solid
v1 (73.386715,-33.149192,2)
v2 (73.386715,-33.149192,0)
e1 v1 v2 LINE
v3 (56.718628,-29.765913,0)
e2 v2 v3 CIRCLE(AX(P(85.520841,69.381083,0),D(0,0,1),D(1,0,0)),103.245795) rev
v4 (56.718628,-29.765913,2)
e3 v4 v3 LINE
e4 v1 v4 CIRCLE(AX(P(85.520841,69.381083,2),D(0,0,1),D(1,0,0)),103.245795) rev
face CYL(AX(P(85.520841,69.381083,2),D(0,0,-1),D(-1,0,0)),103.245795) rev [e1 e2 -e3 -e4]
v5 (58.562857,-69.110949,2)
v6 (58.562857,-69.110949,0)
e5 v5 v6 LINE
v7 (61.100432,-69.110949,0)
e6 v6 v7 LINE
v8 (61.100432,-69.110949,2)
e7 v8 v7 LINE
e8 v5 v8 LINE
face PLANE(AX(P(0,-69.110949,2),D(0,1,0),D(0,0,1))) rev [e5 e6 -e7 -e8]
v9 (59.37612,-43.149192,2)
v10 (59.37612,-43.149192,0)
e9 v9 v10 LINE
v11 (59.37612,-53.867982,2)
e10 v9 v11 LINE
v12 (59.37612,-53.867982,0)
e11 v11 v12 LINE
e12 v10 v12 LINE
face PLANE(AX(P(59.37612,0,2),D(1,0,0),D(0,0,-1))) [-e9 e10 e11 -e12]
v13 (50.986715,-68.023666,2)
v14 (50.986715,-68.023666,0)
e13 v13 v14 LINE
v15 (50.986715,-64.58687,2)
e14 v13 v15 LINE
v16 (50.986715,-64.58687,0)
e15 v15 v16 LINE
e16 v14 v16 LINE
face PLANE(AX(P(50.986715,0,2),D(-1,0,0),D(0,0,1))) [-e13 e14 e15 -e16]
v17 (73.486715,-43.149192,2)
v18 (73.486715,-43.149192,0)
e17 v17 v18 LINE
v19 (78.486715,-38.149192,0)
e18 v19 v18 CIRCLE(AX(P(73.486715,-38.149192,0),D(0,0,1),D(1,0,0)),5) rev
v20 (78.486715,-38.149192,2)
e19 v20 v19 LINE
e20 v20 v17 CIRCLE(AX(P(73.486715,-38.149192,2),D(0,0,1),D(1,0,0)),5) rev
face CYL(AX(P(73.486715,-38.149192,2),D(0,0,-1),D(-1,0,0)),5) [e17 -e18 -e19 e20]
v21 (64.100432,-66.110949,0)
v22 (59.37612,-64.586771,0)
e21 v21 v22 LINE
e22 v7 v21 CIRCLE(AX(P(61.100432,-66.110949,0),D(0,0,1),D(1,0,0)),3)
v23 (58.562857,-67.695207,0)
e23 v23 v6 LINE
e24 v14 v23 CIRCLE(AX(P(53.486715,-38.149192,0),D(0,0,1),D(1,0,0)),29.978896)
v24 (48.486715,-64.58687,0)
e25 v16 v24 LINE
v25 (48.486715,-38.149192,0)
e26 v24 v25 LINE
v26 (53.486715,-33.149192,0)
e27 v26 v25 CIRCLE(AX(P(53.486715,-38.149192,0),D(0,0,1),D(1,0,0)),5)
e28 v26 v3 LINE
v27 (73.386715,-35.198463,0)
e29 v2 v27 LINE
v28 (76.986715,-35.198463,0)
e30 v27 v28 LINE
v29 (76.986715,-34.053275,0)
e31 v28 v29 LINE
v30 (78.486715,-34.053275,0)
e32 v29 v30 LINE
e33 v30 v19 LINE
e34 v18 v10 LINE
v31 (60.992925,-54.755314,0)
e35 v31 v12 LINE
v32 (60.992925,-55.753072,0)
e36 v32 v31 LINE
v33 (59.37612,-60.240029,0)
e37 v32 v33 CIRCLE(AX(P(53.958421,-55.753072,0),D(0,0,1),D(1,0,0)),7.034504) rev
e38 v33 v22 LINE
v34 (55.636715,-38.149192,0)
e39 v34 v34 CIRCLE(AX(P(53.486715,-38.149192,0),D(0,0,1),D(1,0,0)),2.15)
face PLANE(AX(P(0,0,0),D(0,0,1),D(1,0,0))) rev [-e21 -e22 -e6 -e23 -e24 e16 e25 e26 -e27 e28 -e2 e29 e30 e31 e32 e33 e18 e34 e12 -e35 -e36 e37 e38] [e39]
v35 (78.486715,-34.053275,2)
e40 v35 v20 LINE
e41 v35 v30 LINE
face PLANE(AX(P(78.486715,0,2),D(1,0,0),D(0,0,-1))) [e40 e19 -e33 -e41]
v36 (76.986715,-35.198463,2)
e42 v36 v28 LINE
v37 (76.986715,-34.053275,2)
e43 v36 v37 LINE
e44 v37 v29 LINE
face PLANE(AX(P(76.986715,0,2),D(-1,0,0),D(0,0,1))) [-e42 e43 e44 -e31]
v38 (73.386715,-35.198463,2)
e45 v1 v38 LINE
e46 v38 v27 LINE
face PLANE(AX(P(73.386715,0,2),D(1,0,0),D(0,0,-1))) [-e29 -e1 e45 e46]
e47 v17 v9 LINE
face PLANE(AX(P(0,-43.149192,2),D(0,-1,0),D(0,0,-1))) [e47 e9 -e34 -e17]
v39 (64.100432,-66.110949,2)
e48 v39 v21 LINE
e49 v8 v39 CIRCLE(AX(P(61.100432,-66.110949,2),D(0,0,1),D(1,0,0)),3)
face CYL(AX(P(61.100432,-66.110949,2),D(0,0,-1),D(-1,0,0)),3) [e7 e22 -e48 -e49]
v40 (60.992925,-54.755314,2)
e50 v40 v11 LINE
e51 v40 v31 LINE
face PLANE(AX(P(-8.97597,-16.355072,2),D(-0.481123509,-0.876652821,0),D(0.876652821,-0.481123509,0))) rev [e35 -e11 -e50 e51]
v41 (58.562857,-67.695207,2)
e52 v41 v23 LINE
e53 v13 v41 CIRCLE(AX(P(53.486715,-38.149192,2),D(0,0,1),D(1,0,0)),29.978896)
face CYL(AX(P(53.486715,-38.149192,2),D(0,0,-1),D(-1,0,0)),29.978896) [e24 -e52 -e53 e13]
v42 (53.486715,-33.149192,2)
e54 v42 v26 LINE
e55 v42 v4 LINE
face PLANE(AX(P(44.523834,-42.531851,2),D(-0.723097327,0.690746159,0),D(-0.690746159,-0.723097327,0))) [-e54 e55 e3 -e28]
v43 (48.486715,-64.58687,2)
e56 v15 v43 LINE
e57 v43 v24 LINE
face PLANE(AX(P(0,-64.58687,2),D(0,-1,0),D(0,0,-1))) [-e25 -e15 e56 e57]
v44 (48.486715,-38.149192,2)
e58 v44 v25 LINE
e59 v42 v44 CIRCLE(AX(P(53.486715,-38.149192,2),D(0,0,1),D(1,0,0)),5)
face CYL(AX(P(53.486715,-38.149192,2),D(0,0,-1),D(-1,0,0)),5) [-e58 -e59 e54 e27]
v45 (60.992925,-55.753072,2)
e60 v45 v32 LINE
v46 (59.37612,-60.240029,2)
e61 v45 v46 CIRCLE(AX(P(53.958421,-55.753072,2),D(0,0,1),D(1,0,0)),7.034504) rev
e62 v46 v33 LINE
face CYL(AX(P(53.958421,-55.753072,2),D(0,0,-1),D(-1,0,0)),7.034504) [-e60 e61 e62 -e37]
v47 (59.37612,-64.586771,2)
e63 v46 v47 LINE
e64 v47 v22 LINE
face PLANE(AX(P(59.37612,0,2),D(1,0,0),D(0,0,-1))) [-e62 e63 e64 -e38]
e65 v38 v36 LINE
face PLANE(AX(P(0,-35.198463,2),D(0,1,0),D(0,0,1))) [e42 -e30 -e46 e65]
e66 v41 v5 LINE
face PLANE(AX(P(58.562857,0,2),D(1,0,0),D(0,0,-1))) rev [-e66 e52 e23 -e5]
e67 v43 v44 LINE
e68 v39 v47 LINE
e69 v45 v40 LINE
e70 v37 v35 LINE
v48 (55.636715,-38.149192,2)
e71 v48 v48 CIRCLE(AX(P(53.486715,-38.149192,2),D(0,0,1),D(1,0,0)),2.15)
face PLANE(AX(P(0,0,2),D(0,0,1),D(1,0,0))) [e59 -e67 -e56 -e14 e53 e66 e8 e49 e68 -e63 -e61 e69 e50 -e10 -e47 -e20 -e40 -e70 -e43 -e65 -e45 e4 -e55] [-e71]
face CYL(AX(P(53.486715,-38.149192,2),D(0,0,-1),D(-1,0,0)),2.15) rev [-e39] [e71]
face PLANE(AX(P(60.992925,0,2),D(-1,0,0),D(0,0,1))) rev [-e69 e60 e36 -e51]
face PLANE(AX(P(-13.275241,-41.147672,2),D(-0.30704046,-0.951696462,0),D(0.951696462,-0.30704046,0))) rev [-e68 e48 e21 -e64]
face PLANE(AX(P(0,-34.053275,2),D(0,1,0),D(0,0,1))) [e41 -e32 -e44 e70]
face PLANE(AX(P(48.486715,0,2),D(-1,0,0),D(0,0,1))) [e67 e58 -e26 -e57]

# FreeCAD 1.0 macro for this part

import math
import FreeCAD as App
import Part
import Sketcher
from FreeCAD import Vector

doc = App.newDocument("Part")
body = doc.addObject("PartDesign::Body", "Body")

# Sketch on XY plane
sketch1 = body.newObject("Sketcher::SketchObject", "Sketch")
sketch1.AttachmentSupport = (doc.getObject("XY_Plane"), [""])
sketch1.MapMode = "FlatFace"
sketch1.addGeometry(Part.LineSegment(Vector(58.562857, -69.110949, 0), Vector(61.100432, -69.110949, 0)), False)
sketch1.addGeometry(Part.ArcOfCircle(Part.Circle(Vector(61.100432, -66.110949, 0), Vector(0, 0, 1), 3), math.radians(-90), math.radians(0)), False)
sketch1.addGeometry(Part.LineSegment(Vector(64.100432, -66.110949, 0), Vector(59.37612, -64.586771, 0)), False)
sketch1.addGeometry(Part.LineSegment(Vector(59.37612, -64.586771, 0), Vector(59.37612, -60.240029, 0)), False)
sketch1.addGeometry(Part.ArcOfCircle(Part.Circle(Vector(53.958421, -55.753072, 0), Vector(0, 0, 1), 7.034504), math.radians(-39.631666), math.radians(0)), False)
sketch1.addGeometry(Part.LineSegment(Vector(60.992925, -55.753072, 0), Vector(60.992925, -54.755314, 0)), False)
sketch1.addGeometry(Part.LineSegment(Vector(60.992925, -54.755314, 0), Vector(59.37612, -53.867982, 0)), False)
sketch1.addGeometry(Part.LineSegment(Vector(59.37612, -53.867982, 0), Vector(59.37612, -43.149192, 0)), False)
sketch1.addGeometry(Part.LineSegment(Vector(59.37612, -43.149192, 0), Vector(73.486715, -43.149192, 0)), False)
sketch1.addGeometry(Part.ArcOfCircle(Part.Circle(Vector(73.486715, -38.149192, 0), Vector(0, 0, 1), 5), math.radians(-90), math.radians(0)), False)
sketch1.addGeometry(Part.LineSegment(Vector(78.486715, -38.149192, 0), Vector(78.486715, -34.053275, 0)), False)
sketch1.addGeometry(Part.LineSegment(Vector(78.486715, -34.053275, 0), Vector(76.986715, -34.053275, 0)), False)
sketch1.addGeometry(Part.LineSegment(Vector(76.986715, -34.053275, 0), Vector(76.986715, -35.198463, 0)), False)
sketch1.addGeometry(Part.LineSegment(Vector(76.986715, -35.198463, 0), Vector(73.386715, -35.198463, 0)), False)
sketch1.addGeometry(Part.LineSegment(Vector(73.386715, -35.198463, 0), Vector(73.386715, -33.149192, 0)), False)
sketch1.addGeometry(Part.ArcOfCircle(Part.Circle(Vector(85.520841, 69.381082, 0), Vector(0, 0, 1), 103.245795), math.radians(-106.198587), math.radians(-96.749376)), False)
sketch1.addGeometry(Part.LineSegment(Vector(56.718628, -29.765913, 0), Vector(53.486715, -33.149192, 0)), False)
sketch1.addGeometry(Part.ArcOfCircle(Part.Circle(Vector(53.486715, -38.149192, 0), Vector(0, 0, 1), 5), math.radians(90), math.radians(180)), False)
sketch1.addGeometry(Part.LineSegment(Vector(48.486715, -38.149192, 0), Vector(48.486715, -64.58687, 0)), False)
sketch1.addGeometry(Part.LineSegment(Vector(48.486715, -64.58687, 0), Vector(50.986715, -64.58687, 0)), False)
sketch1.addGeometry(Part.LineSegment(Vector(50.986715, -64.58687, 0), Vector(50.986715, -68.023666, 0)), False)
sketch1.addGeometry(Part.ArcOfCircle(Part.Circle(Vector(53.486715, -38.149192, 0), Vector(0, 0, 1), 29.978896), math.radians(-94.783565), math.radians(-80.251493)), False)
sketch1.addGeometry(Part.LineSegment(Vector(58.562857, -67.695207, 0), Vector(58.562857, -69.110949, 0)), False)
sketch1.addGeometry(Part.Circle(Vector(53.486715, -38.149192, 0), Vector(0, 0, 1), 2.15), False)
sketch1.addConstraint(Sketcher.Constraint("Tangent", 0, 2, 1, 1))
sketch1.addConstraint(Sketcher.Constraint("Coincident", 1, 2, 2, 1))
sketch1.addConstraint(Sketcher.Constraint("Coincident", 2, 2, 3, 1))
sketch1.addConstraint(Sketcher.Constraint("Coincident", 3, 2, 4, 1))
sketch1.addConstraint(Sketcher.Constraint("Tangent", 4, 2, 5, 1))
sketch1.addConstraint(Sketcher.Constraint("Coincident", 5, 2, 6, 1))
sketch1.addConstraint(Sketcher.Constraint("Coincident", 6, 2, 7, 1))
sketch1.addConstraint(Sketcher.Constraint("Coincident", 7, 2, 8, 1))
sketch1.addConstraint(Sketcher.Constraint("Tangent", 8, 2, 9, 1))
sketch1.addConstraint(Sketcher.Constraint("Tangent", 9, 2, 10, 1))
sketch1.addConstraint(Sketcher.Constraint("Coincident", 10, 2, 11, 1))
sketch1.addConstraint(Sketcher.Constraint("Coincident", 11, 2, 12, 1))
sketch1.addConstraint(Sketcher.Constraint("Coincident", 12, 2, 13, 1))
sketch1.addConstraint(Sketcher.Constraint("Coincident", 13, 2, 14, 1))
sketch1.addConstraint(Sketcher.Constraint("Coincident", 14, 2, 15, 2))
sketch1.addConstraint(Sketcher.Constraint("Coincident", 15, 1, 16, 1))
sketch1.addConstraint(Sketcher.Constraint("Coincident", 16, 2, 17, 1))
sketch1.addConstraint(Sketcher.Constraint("Tangent", 17, 2, 18, 1))
sketch1.addConstraint(Sketcher.Constraint("Coincident", 18, 2, 19, 1))
sketch1.addConstraint(Sketcher.Constraint("Coincident", 19, 2, 20, 1))
sketch1.addConstraint(Sketcher.Constraint("Coincident", 20, 2, 21, 1))
sketch1.addConstraint(Sketcher.Constraint("Coincident", 21, 2, 22, 1))
sketch1.addConstraint(Sketcher.Constraint("Coincident", 22, 2, 0, 1))
sketch1.addConstraint(Sketcher.Constraint("Horizontal", 0))
sketch1.addConstraint(Sketcher.Constraint("Vertical", 3))
sketch1.addConstraint(Sketcher.Constraint("Vertical", 5))
sketch1.addConstraint(Sketcher.Constraint("Vertical", 7))
sketch1.addConstraint(Sketcher.Constraint("Horizontal", 8))
sketch1.addConstraint(Sketcher.Constraint("Vertical", 10))
sketch1.addConstraint(Sketcher.Constraint("Horizontal", 11))
sketch1.addConstraint(Sketcher.Constraint("Vertical", 12))
sketch1.addConstraint(Sketcher.Constraint("Horizontal", 13))
sketch1.addConstraint(Sketcher.Constraint("Vertical", 14))
sketch1.addConstraint(Sketcher.Constraint("Vertical", 18))
sketch1.addConstraint(Sketcher.Constraint("Horizontal", 19))
sketch1.addConstraint(Sketcher.Constraint("Vertical", 20))
sketch1.addConstraint(Sketcher.Constraint("Vertical", 22))
sketch1.addConstraint(Sketcher.Constraint("Coincident", 21, 3, 17, 3))
sketch1.addConstraint(Sketcher.Constraint("Coincident", 23, 3, 17, 3))
sketch1.addConstraint(Sketcher.Constraint("Equal", 9, 17))
sketch1.addConstraint(Sketcher.Constraint("Horizontal", 9, 3, 17, 3))
sketch1.addConstraint(Sketcher.Constraint("Horizontal", 14, 2, 16, 2))
sketch1.addConstraint(Sketcher.Constraint("Vertical", 3, 2, 6, 2))
sketch1.addConstraint(Sketcher.Constraint("Vertical", 23, 3, 16, 2))
sketch1.addConstraint(Sketcher.Constraint("Radius", 1, 3.0))
sketch1.addConstraint(Sketcher.Constraint("Radius", 9, 5.0))
sketch1.addConstraint(Sketcher.Constraint("Diameter", 23, 4.3))
sketch1.addConstraint(Sketcher.Constraint("DistanceX", 11, 2, 11, 1, 1.5))
sketch1.addConstraint(Sketcher.Constraint("DistanceX", 13, 2, 13, 1, 3.6))
sketch1.addConstraint(Sketcher.Constraint("DistanceX", 19, 1, 19, 2, 2.5))
sketch1.addConstraint(Sketcher.Constraint("DistanceX", 17, 3, 9, 3, 20.0))
sketch1.addConstraint(Sketcher.Constraint("DistanceY", 0, 2, 1, 2, 3.0))
sketch1.addConstraint(Sketcher.Constraint("Radius", 4, 7.034504))
sketch1.addConstraint(Sketcher.Constraint("Radius", 15, 103.245795))
sketch1.addConstraint(Sketcher.Constraint("Radius", 21, 29.978896))
sketch1.addConstraint(Sketcher.Constraint("DistanceY", 7, 1, 7, 2, 10.71879))
sketch1.addConstraint(Sketcher.Constraint("DistanceY", 12, 2, 12, 1, 1.145188))
sketch1.addConstraint(Sketcher.Constraint("DistanceY", 14, 1, 14, 2, 2.049272))
sketch1.addConstraint(Sketcher.Constraint("DistanceX", 4, 3, 2, 2, 5.417699))
sketch1.addConstraint(Sketcher.Constraint("DistanceY", 2, 2, 4, 3, 8.833699))
sketch1.addConstraint(Sketcher.Constraint("Distance", 16, 4.678871))
sketch1.addConstraint(Sketcher.Constraint("DistanceX", 0, 1, 0, 2, 2.537575))
sketch1.addConstraint(Sketcher.Constraint("DistanceX", 8, 1, 8, 2, 14.110595))
sketch1.addConstraint(Sketcher.Constraint("DistanceY", 5, 1, 5, 2, 0.997758))
sketch1.addConstraint(Sketcher.Constraint("DistanceY", 18, 2, 18, 1, 26.437678))
sketch1.addConstraint(Sketcher.Constraint("DistanceY", 22, 2, 22, 1, 1.415742))
sketch1.addConstraint(Sketcher.Constraint("DistanceX", -1, 1, 1, 3, 61.100432))
sketch1.addConstraint(Sketcher.Constraint("DistanceY", 1, 3, -1, 1, 66.110949))
sketch1.addConstraint(Sketcher.Constraint("DistanceX", -1, 1, 4, 3, 53.958421))
sketch1.addConstraint(Sketcher.Constraint("DistanceX", -1, 1, 15, 3, 85.520841))
sketch1.addConstraint(Sketcher.Constraint("DistanceY", 2, 2, -1, 1, 64.586771))
pad1 = body.newObject("PartDesign::Pad", "Pad")
pad1.Profile = sketch1
pad1.Length = 2

doc.recompute()
